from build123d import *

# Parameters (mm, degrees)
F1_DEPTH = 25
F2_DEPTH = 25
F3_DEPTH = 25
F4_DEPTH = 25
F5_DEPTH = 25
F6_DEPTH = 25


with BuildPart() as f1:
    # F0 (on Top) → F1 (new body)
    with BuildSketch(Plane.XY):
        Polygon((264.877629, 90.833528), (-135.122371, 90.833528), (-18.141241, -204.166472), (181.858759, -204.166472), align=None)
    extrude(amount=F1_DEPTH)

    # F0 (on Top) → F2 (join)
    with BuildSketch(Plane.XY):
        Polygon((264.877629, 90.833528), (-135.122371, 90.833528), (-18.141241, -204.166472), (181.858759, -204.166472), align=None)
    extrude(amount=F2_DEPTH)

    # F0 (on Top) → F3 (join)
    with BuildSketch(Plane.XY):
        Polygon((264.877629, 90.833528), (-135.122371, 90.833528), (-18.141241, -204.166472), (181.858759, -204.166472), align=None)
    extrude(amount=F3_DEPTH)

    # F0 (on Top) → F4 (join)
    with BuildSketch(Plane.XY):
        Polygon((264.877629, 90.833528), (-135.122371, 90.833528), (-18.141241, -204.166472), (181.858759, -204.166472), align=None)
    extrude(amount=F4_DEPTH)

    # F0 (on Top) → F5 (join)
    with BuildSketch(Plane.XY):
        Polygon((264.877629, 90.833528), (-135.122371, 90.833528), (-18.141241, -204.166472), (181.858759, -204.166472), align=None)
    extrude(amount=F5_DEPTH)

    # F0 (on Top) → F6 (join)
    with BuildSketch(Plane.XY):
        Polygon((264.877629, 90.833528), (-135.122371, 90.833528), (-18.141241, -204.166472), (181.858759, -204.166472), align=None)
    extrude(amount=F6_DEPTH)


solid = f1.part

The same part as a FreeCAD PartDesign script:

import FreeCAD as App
import Part
import Sketcher

V = App.Vector
Q = App.Units.Quantity

doc = App.newDocument("Part")
params = doc.addObject("Spreadsheet::Sheet", "Params")
for row, (alias, value) in enumerate([
    ("sketch1_width", "400 mm"),
    ("sketch1_width2", "200 mm"),
    ("pad1_length", "25 mm"),
    ("sketch2_width", "400 mm"),
    ("sketch2_width2", "200 mm"),
    ("pad2_length", "25 mm"),
    ("sketch3_width", "400 mm"),
    ("sketch3_width2", "200 mm"),
    ("pad3_length", "25 mm"),
    ("sketch4_width", "400 mm"),
    ("sketch4_width2", "200 mm"),
    ("pad4_length", "25 mm"),
    ("sketch5_width", "400 mm"),
    ("sketch5_width2", "200 mm"),
    ("pad5_length", "25 mm"),
    ("sketch6_width", "400 mm"),
    ("sketch6_width2", "200 mm"),
    ("pad6_length", "25 mm"),
], start=1):
    params.set(f"A{row}", alias)
    params.set(f"B{row}", "=" + value)
    params.setAlias(f"B{row}", alias)

body = doc.addObject("PartDesign::Body", "Body")

sketch1 = doc.addObject("Sketcher::SketchObject", "Sketch")
body.addObject(sketch1)
sketch1.AttachmentSupport = (doc.XY_Plane, [""])
sketch1.MapMode = "FlatFace"
sketch1.addGeometry([
    Part.LineSegment(V(265, 91, 0), V(-135, 91, 0)),
    Part.LineSegment(V(-135, 91, 0), V(-18, -204, 0)),
    Part.LineSegment(V(-18, -204, 0), V(182, -204, 0)),
    Part.LineSegment(V(182, -204, 0), V(265, 91, 0)),
], False)
sketch1.addConstraint([
    Sketcher.Constraint("Coincident", 0, 2, 1, 1),
    Sketcher.Constraint("Coincident", 1, 2, 2, 1),
    Sketcher.Constraint("Coincident", 2, 2, 3, 1),
    Sketcher.Constraint("Coincident", 3, 2, 0, 1),
    Sketcher.Constraint("Horizontal", 0),
    Sketcher.Constraint("Horizontal", 2),
    Sketcher.Constraint("DistanceX", 0, 2, 0, 1, Q("400 mm")),
    Sketcher.Constraint("DistanceX", 2, 1, 2, 2, Q("200 mm")),
    Sketcher.Constraint("DistanceY", 1, 2, 0, 2, Q("295 mm")),
    Sketcher.Constraint("DistanceX", 0, 2, -1, 1, Q("135.122371 mm")),
    Sketcher.Constraint("DistanceY", -1, 1, 0, 2, Q("90.833528 mm")),
    Sketcher.Constraint("DistanceX", 1, 2, -1, 1, Q("18.141241 mm")),
])
sketch1.setExpression("Constraints[6]", "Params.sketch1_width")
sketch1.setExpression("Constraints[7]", "Params.sketch1_width2")
pad1 = doc.addObject("PartDesign::Pad", "Pad")
body.addObject(pad1)
pad1.Profile = sketch1
pad1.setExpression("Length", "Params.pad1_length")

sketch2 = doc.addObject("Sketcher::SketchObject", "Sketch001")
body.addObject(sketch2)
sketch2.AttachmentSupport = (doc.XY_Plane, [""])
sketch2.MapMode = "FlatFace"
sketch2.addGeometry([
    Part.LineSegment(V(265, 91, 0), V(-135, 91, 0)),
    Part.LineSegment(V(-135, 91, 0), V(-18, -204, 0)),
    Part.LineSegment(V(-18, -204, 0), V(182, -204, 0)),
    Part.LineSegment(V(182, -204, 0), V(265, 91, 0)),
], False)
sketch2.addConstraint([
    Sketcher.Constraint("Coincident", 0, 2, 1, 1),
    Sketcher.Constraint("Coincident", 1, 2, 2, 1),
    Sketcher.Constraint("Coincident", 2, 2, 3, 1),
    Sketcher.Constraint("Coincident", 3, 2, 0, 1),
    Sketcher.Constraint("Horizontal", 0),
    Sketcher.Constraint("Horizontal", 2),
    Sketcher.Constraint("DistanceX", 0, 2, 0, 1, Q("400 mm")),
    Sketcher.Constraint("DistanceX", 2, 1, 2, 2, Q("200 mm")),
    Sketcher.Constraint("DistanceY", 1, 2, 0, 2, Q("295 mm")),
    Sketcher.Constraint("DistanceX", 0, 2, -1, 1, Q("135.122371 mm")),
    Sketcher.Constraint("DistanceY", -1, 1, 0, 2, Q("90.833528 mm")),
    Sketcher.Constraint("DistanceX", 1, 2, -1, 1, Q("18.141241 mm")),
])
sketch2.setExpression("Constraints[6]", "Params.sketch2_width")
sketch2.setExpression("Constraints[7]", "Params.sketch2_width2")
pad2 = doc.addObject("PartDesign::Pad", "Pad001")
body.addObject(pad2)
pad2.Profile = sketch2
pad2.setExpression("Length", "Params.pad2_length")

sketch3 = doc.addObject("Sketcher::SketchObject", "Sketch002")
body.addObject(sketch3)
sketch3.AttachmentSupport = (doc.XY_Plane, [""])
sketch3.MapMode = "FlatFace"
sketch3.addGeometry([
    Part.LineSegment(V(265, 91, 0), V(-135, 91, 0)),
    Part.LineSegment(V(-135, 91, 0), V(-18, -204, 0)),
    Part.LineSegment(V(-18, -204, 0), V(182, -204, 0)),
    Part.LineSegment(V(182, -204, 0), V(265, 91, 0)),
], False)
sketch3.addConstraint([
    Sketcher.Constraint("Coincident", 0, 2, 1, 1),
    Sketcher.Constraint("Coincident", 1, 2, 2, 1),
    Sketcher.Constraint("Coincident", 2, 2, 3, 1),
    Sketcher.Constraint("Coincident", 3, 2, 0, 1),
    Sketcher.Constraint("Horizontal", 0),
    Sketcher.Constraint("Horizontal", 2),
    Sketcher.Constraint("DistanceX", 0, 2, 0, 1, Q("400 mm")),
    Sketcher.Constraint("DistanceX", 2, 1, 2, 2, Q("200 mm")),
    Sketcher.Constraint("DistanceY", 1, 2, 0, 2, Q("295 mm")),
    Sketcher.Constraint("DistanceX", 0, 2, -1, 1, Q("135.122371 mm")),
    Sketcher.Constraint("DistanceY", -1, 1, 0, 2, Q("90.833528 mm")),
    Sketcher.Constraint("DistanceX", 1, 2, -1, 1, Q("18.141241 mm")),
])
sketch3.setExpression("Constraints[6]", "Params.sketch3_width")
sketch3.setExpression("Constraints[7]", "Params.sketch3_width2")
pad3 = doc.addObject("PartDesign::Pad", "Pad002")
body.addObject(pad3)
pad3.Profile = sketch3
pad3.setExpression("Length", "Params.pad3_length")

sketch4 = doc.addObject("Sketcher::SketchObject", "Sketch003")
body.addObject(sketch4)
sketch4.AttachmentSupport = (doc.XY_Plane, [""])
sketch4.MapMode = "FlatFace"
sketch4.addGeometry([
    Part.LineSegment(V(265, 91, 0), V(-135, 91, 0)),
    Part.LineSegment(V(-135, 91, 0), V(-18, -204, 0)),
    Part.LineSegment(V(-18, -204, 0), V(182, -204, 0)),
    Part.LineSegment(V(182, -204, 0), V(265, 91, 0)),
], False)
sketch4.addConstraint([
    Sketcher.Constraint("Coincident", 0, 2, 1, 1),
    Sketcher.Constraint("Coincident", 1, 2, 2, 1),
    Sketcher.Constraint("Coincident", 2, 2, 3, 1),
    Sketcher.Constraint("Coincident", 3, 2, 0, 1),
    Sketcher.Constraint("Horizontal", 0),
    Sketcher.Constraint("Horizontal", 2),
    Sketcher.Constraint("DistanceX", 0, 2, 0, 1, Q("400 mm")),
    Sketcher.Constraint("DistanceX", 2, 1, 2, 2, Q("200 mm")),
    Sketcher.Constraint("DistanceY", 1, 2, 0, 2, Q("295 mm")),
    Sketcher.Constraint("DistanceX", 0, 2, -1, 1, Q("135.122371 mm")),
    Sketcher.Constraint("DistanceY", -1, 1, 0, 2, Q("90.833528 mm")),
    Sketcher.Constraint("DistanceX", 1, 2, -1, 1, Q("18.141241 mm")),
])
sketch4.setExpression("Constraints[6]", "Params.sketch4_width")
sketch4.setExpression("Constraints[7]", "Params.sketch4_width2")
pad4 = doc.addObject("PartDesign::Pad", "Pad003")
body.addObject(pad4)
pad4.Profile = sketch4
pad4.setExpression("Length", "Params.pad4_length")

sketch5 = doc.addObject("Sketcher::SketchObject", "Sketch004")
body.addObject(sketch5)
sketch5.AttachmentSupport = (doc.XY_Plane, [""])
sketch5.MapMode = "FlatFace"
sketch5.addGeometry([
    Part.LineSegment(V(265, 91, 0), V(-135, 91, 0)),
    Part.LineSegment(V(-135, 91, 0), V(-18, -204, 0)),
    Part.LineSegment(V(-18, -204, 0), V(182, -204, 0)),
    Part.LineSegment(V(182, -204, 0), V(265, 91, 0)),
], False)
sketch5.addConstraint([
    Sketcher.Constraint("Coincident", 0, 2, 1, 1),
    Sketcher.Constraint("Coincident", 1, 2, 2, 1),
    Sketcher.Constraint("Coincident", 2, 2, 3, 1),
    Sketcher.Constraint("Coincident", 3, 2, 0, 1),
    Sketcher.Constraint("Horizontal", 0),
    Sketcher.Constraint("Horizontal", 2),
    Sketcher.Constraint("DistanceX", 0, 2, 0, 1, Q("400 mm")),
    Sketcher.Constraint("DistanceX", 2, 1, 2, 2, Q("200 mm")),
    Sketcher.Constraint("DistanceY", 1, 2, 0, 2, Q("295 mm")),
    Sketcher.Constraint("DistanceX", 0, 2, -1, 1, Q("135.122371 mm")),
    Sketcher.Constraint("DistanceY", -1, 1, 0, 2, Q("90.833528 mm")),
    Sketcher.Constraint("DistanceX", 1, 2, -1, 1, Q("18.141241 mm")),
])
sketch5.setExpression("Constraints[6]", "Params.sketch5_width")
sketch5.setExpression("Constraints[7]", "Params.sketch5_width2")
pad5 = doc.addObject("PartDesign::Pad", "Pad004")
body.addObject(pad5)
pad5.Profile = sketch5
pad5.setExpression("Length", "Params.pad5_length")

sketch6 = doc.addObject("Sketcher::SketchObject", "Sketch005")
body.addObject(sketch6)
sketch6.AttachmentSupport = (doc.XY_Plane, [""])
sketch6.MapMode = "FlatFace"
sketch6.addGeometry([
    Part.LineSegment(V(265, 91, 0), V(-135, 91, 0)),
    Part.LineSegment(V(-135, 91, 0), V(-18, -204, 0)),
    Part.LineSegment(V(-18, -204, 0), V(182, -204, 0)),
    Part.LineSegment(V(182, -204, 0), V(265, 91, 0)),
], False)
sketch6.addConstraint([
    Sketcher.Constraint("Coincident", 0, 2, 1, 1),
    Sketcher.Constraint("Coincident", 1, 2, 2, 1),
    Sketcher.Constraint("Coincident", 2, 2, 3, 1),
    Sketcher.Constraint("Coincident", 3, 2, 0, 1),
    Sketcher.Constraint("Horizontal", 0),
    Sketcher.Constraint("Horizontal", 2),
    Sketcher.Constraint("DistanceX", 0, 2, 0, 1, Q("400 mm")),
    Sketcher.Constraint("DistanceX", 2, 1, 2, 2, Q("200 mm")),
    Sketcher.Constraint("DistanceY", 1, 2, 0, 2, Q("295 mm")),
    Sketcher.Constraint("DistanceX", 0, 2, -1, 1, Q("135.122371 mm")),
    Sketcher.Constraint("DistanceY", -1, 1, 0, 2, Q("90.833528 mm")),
    Sketcher.Constraint("DistanceX", 1, 2, -1, 1, Q("18.141241 mm")),
])
sketch6.setExpression("Constraints[6]", "Params.sketch6_width")
sketch6.setExpression("Constraints[7]", "Params.sketch6_width2")
pad6 = doc.addObject("PartDesign::Pad", "Pad005")
body.addObject(pad6)
pad6.Profile = sketch6
pad6.setExpression("Length", "Params.pad6_length")

doc.recompute()
